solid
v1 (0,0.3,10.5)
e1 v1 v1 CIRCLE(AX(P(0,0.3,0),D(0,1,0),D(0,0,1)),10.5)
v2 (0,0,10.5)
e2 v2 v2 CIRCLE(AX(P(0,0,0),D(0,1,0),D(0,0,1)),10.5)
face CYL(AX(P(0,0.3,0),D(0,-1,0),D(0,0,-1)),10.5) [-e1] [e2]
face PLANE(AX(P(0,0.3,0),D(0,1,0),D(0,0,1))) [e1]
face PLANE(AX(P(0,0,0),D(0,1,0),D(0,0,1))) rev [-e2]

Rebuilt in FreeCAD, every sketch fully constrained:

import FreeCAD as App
import Part
import Sketcher

V = App.Vector

doc = App.newDocument("Part")
body = doc.addObject("PartDesign::Body", "Body")

# Sketch on XZ plane
sketch1 = body.newObject("Sketcher::SketchObject", "Sketch")
sketch1.AttachmentSupport = (doc.getObject("XZ_Plane"), [""])
sketch1.MapMode = "FlatFace"
sketch1.addGeometry(Part.Circle(V(0, 0, 0), V(0, 0, 1), 10), False)
sketch1.addConstraint(Sketcher.Constraint("Coincident", 0, 3, -1, 1))
sketch1.addConstraint(Sketcher.Constraint("Diameter", 0, 21.0))
pad1 = body.newObject("PartDesign::Pad", "Pad")
pad1.Profile = sketch1
pad1.Length = 0.3
pad1.Reversed = True

doc.recompute()
